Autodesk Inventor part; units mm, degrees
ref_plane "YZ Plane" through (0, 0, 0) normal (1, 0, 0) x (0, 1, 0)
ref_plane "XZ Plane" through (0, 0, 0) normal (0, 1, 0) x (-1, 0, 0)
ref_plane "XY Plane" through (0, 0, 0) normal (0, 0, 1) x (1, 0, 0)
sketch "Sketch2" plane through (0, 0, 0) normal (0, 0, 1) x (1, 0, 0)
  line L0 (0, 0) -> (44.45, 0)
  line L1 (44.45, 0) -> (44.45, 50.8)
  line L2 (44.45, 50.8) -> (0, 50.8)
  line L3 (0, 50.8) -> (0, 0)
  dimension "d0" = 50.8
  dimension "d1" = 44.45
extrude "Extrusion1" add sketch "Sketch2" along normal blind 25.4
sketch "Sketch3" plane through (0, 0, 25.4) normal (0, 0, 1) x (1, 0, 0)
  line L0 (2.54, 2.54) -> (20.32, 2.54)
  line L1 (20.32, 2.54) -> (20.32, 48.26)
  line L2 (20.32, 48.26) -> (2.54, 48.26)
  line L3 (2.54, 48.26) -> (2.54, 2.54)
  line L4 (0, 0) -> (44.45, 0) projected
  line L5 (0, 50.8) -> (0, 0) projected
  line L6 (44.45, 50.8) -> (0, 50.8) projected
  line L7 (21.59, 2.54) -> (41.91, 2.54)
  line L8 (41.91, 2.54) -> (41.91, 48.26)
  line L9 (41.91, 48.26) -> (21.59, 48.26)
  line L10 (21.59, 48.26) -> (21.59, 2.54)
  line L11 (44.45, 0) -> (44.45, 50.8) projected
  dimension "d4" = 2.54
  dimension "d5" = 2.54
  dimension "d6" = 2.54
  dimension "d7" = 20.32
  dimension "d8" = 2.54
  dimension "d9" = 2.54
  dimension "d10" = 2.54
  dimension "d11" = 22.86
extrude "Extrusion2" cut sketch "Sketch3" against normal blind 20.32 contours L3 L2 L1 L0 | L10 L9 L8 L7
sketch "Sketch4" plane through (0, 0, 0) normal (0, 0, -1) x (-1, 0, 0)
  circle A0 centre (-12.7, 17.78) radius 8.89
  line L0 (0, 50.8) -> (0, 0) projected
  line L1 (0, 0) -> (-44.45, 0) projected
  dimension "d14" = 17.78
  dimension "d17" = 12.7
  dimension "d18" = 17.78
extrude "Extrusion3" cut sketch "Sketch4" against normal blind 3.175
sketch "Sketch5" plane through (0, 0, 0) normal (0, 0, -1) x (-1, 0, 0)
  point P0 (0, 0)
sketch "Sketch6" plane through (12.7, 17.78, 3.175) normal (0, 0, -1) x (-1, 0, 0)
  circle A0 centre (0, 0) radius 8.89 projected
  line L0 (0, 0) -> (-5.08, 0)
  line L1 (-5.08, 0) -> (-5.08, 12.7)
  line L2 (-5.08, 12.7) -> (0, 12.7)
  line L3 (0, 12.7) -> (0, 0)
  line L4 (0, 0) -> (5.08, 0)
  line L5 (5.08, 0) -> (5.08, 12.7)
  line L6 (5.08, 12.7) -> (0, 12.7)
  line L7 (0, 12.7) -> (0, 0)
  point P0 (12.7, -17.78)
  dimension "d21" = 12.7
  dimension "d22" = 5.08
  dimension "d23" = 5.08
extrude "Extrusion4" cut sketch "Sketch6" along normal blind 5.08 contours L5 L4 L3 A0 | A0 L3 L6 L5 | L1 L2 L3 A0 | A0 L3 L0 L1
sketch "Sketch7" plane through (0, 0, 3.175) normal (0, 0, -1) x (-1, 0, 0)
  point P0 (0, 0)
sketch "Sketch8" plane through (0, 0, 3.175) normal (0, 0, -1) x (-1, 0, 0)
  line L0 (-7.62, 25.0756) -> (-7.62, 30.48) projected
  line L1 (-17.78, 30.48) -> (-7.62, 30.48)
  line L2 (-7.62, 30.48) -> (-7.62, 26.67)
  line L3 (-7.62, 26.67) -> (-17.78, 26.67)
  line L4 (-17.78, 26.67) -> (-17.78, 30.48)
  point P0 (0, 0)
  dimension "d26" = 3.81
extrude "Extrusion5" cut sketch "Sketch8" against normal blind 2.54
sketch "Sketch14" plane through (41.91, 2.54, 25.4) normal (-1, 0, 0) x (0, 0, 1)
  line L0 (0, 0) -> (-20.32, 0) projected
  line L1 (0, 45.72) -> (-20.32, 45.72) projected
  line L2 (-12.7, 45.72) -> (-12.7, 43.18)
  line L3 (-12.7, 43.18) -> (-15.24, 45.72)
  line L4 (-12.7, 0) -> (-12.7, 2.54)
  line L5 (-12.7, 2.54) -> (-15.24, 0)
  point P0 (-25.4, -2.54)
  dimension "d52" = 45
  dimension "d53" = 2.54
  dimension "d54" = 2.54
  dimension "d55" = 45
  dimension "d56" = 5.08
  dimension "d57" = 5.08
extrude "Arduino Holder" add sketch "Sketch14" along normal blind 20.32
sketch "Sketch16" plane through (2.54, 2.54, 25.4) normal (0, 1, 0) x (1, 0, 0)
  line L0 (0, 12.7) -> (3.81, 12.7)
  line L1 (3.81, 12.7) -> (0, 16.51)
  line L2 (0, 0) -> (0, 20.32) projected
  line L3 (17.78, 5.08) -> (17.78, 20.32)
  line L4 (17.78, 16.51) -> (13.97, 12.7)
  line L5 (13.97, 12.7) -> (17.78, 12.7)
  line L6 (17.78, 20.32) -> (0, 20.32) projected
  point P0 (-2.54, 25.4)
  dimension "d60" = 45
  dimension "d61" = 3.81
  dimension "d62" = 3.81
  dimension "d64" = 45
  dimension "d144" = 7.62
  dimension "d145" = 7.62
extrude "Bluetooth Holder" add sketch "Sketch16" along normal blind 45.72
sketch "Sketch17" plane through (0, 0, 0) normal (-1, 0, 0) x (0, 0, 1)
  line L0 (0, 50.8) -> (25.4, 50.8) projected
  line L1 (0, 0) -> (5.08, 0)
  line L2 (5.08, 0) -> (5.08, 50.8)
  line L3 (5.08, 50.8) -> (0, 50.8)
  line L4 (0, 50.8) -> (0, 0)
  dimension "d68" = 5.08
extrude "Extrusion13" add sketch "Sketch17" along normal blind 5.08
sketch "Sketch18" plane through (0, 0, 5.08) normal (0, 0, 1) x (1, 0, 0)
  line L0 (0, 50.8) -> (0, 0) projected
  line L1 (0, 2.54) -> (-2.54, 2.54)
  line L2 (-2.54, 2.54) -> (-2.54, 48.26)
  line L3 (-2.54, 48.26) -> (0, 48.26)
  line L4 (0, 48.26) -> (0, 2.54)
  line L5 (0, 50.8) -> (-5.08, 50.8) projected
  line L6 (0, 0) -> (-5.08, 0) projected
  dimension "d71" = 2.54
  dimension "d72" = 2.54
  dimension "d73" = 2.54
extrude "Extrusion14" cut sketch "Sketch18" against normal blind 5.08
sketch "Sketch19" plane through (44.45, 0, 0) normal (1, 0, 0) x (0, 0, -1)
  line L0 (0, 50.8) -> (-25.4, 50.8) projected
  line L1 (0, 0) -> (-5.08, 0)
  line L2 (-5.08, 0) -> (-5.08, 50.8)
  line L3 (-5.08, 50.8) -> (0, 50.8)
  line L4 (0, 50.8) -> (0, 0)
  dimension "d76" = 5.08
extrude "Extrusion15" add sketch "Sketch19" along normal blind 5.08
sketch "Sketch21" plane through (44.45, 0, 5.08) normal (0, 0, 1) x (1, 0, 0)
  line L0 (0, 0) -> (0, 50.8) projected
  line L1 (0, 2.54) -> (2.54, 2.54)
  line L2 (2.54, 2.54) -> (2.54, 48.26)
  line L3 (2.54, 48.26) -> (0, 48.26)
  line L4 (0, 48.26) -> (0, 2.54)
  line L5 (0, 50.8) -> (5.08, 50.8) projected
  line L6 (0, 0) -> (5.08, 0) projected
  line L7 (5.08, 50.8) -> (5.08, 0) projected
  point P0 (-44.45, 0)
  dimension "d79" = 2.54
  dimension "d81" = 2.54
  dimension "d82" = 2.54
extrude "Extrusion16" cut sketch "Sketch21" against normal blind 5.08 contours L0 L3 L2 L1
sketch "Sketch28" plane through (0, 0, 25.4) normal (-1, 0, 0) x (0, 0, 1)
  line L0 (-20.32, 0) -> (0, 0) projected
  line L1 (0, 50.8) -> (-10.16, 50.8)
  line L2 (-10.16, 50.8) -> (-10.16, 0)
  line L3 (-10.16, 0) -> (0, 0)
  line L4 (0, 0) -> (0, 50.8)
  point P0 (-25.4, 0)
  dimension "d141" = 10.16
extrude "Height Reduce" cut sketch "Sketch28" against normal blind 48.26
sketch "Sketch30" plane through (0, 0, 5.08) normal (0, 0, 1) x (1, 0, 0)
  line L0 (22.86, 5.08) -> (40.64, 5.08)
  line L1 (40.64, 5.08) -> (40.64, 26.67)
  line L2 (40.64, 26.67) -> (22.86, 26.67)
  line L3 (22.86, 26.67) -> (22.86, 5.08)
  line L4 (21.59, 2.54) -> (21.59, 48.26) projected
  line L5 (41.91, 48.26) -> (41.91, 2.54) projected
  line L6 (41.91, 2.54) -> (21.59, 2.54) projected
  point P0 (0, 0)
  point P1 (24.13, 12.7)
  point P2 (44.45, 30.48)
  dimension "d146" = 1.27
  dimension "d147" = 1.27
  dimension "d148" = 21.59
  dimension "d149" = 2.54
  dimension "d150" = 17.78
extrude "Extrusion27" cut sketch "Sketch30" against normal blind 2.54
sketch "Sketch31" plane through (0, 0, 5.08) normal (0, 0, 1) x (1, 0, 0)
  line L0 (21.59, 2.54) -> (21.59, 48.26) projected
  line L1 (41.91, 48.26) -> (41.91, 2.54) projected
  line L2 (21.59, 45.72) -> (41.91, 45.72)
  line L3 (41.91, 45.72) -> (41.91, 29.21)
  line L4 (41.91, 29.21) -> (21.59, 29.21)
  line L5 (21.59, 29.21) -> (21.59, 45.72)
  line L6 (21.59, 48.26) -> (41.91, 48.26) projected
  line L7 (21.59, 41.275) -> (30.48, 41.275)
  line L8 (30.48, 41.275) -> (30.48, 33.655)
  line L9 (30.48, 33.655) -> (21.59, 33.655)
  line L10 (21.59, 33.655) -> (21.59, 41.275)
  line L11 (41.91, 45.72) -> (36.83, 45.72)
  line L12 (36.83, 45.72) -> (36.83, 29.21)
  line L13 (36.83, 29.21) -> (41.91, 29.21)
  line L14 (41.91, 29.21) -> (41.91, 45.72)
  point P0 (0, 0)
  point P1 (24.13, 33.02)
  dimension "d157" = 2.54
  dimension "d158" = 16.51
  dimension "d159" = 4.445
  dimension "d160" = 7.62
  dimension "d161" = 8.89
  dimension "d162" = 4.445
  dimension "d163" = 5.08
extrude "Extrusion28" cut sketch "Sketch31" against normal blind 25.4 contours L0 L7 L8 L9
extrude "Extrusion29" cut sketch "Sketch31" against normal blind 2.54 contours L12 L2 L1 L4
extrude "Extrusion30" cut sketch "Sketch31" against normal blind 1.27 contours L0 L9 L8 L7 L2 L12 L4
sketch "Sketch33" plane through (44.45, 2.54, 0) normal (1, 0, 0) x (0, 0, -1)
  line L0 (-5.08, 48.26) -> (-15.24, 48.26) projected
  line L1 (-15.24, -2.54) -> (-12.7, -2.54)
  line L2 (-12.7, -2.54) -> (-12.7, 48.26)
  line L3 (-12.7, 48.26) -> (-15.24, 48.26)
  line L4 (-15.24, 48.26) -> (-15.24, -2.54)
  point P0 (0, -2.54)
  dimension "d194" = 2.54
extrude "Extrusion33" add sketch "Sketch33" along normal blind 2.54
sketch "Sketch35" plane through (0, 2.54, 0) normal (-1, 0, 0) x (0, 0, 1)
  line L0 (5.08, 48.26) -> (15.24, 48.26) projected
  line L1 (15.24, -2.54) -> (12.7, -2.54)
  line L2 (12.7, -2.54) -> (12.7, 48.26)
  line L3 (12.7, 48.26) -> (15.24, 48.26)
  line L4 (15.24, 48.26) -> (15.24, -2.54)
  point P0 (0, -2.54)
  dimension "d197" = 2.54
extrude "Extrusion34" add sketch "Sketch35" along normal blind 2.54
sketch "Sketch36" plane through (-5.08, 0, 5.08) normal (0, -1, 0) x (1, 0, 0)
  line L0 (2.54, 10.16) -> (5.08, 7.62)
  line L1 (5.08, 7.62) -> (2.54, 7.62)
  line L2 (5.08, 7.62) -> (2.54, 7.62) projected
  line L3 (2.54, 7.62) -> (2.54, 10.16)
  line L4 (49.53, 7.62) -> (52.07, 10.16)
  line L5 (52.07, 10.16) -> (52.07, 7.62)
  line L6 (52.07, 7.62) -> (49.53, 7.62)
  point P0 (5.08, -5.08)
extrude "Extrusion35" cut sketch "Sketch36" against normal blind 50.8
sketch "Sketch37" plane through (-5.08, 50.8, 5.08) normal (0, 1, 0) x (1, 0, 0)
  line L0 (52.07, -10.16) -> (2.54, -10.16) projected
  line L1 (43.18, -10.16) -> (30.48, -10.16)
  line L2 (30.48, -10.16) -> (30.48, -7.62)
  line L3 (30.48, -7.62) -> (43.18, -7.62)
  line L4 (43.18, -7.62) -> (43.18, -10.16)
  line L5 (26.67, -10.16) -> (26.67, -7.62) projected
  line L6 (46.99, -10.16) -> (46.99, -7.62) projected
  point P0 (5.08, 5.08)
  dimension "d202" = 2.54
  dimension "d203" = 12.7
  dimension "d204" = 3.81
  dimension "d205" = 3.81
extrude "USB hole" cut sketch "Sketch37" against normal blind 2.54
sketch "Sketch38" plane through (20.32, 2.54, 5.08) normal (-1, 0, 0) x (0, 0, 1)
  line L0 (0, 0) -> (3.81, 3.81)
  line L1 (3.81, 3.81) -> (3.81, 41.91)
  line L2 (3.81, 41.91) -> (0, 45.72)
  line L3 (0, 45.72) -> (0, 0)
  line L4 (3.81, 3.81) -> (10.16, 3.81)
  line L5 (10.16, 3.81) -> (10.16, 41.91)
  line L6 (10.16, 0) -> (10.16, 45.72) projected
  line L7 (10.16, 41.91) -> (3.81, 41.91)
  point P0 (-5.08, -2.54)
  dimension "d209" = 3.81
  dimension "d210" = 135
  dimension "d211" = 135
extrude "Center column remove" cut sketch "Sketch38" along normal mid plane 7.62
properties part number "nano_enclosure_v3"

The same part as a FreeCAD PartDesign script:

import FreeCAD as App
import Part
import Sketcher
Q = App.Units.Quantity


def add_polygon(sketch, points):
    """Adds a closed chain of lines whose ends are joined by coincident constraints."""
    first, n = sketch.GeometryCount, len(points)
    for a, b in zip(points, points[1:] + points[:1]):
        sketch.addGeometry(Part.LineSegment(App.Vector(*a, 0), App.Vector(*b, 0)), False)
    for i in range(n):
        sketch.addConstraint(Sketcher.Constraint("Coincident", first + i, 2, first + (i + 1) % n, 1))

doc = App.newDocument("Part")
params = doc.addObject("Spreadsheet::Sheet", "Params")
for row, (alias, value) in enumerate([
    ("sketch1_height", "2 in"),
    ("sketch1_width", "1.75 in"),
    ("pad1_length", "1 in"),
    ("sketch2_width", "0.8 in"),
    ("sketch2_height", "1.8 in"),
    ("pocket1_length", "0.8 in"),
    ("sketch3_diameter", "0.7 in"),
    ("pocket2_length", "0.125 in"),
    ("sketch4_height", "0.5 in"),
    ("sketch4_width", "0.4 in"),
    ("pocket3_length", "0.2 in"),
    ("sketch5_height", "0.15 in"),
    ("sketch5_width", "0.4 in"),
    ("pocket4_length", "0.1 in"),
    ("sketch6_width", "0.1 in"),
    ("pad2_length", "0.8 in"),
    ("sketch7_width", "0.15 in"),
    ("pad3_length", "1.8 in"),
    ("sketch8_height", "0.2 in"),
    ("sketch8_width", "2 in"),
    ("pad4_length", "0.2 in"),
    ("sketch9_width", "0.1 in"),
    ("sketch9_height", "1.8 in"),
    ("pocket5_length", "0.2 in"),
    ("sketch10_height", "0.2 in"),
    ("sketch10_width", "2 in"),
    ("pad5_length", "0.2 in"),
    ("sketch11_width", "0.1 in"),
    ("sketch11_height", "1.8 in"),
    ("pocket6_length", "0.2 in"),
    ("sketch12_height", "0.4 in"),
    ("sketch12_width", "2 in"),
    ("pocket7_length", "1.9 in"),
    ("sketch13_width", "0.7 in"),
    ("sketch13_height", "0.85 in"),
    ("pocket8_length", "0.1 in"),
    ("sketch14_height", "0.3 in"),
    ("sketch14_width", "0.35 in"),
    ("pocket9_length", "1 in"),
    ("sketch15_width", "0.2 in"),
    ("sketch15_height", "0.65 in"),
    ("pocket10_length", "0.1 in"),
    ("sketch16_height", "0.3 in"),
    ("sketch16_width", "0.35 in"),
    ("sketch16_height2", "0.65 in"),
    ("sketch16_width2", "0.6 in"),
    ("pocket11_length", "0.05 in"),
    ("sketch17_height", "0.1 in"),
    ("sketch17_width", "2 in"),
    ("pad6_length", "0.1 in"),
    ("sketch18_height", "0.1 in"),
    ("sketch18_width", "2 in"),
    ("pad7_length", "0.1 in"),
    ("sketch19_width", "0.1 in"),
    ("pocket12_length", "2 in"),
    ("sketch20_width", "0.5 in"),
    ("sketch20_height", "0.1 in"),
    ("pocket13_length", "0.1 in"),
    ("sketch21_width", "1.8 in"),
    ("sketch21_height", "0.25 in"),
    ("pocket14_length", "0.3 in"),
], start=1):
    params.set(f"A{row}", alias)
    params.set(f"B{row}", "=" + value)
    params.setAlias(f"B{row}", alias)

body = doc.addObject("PartDesign::Body", "Body")

sketch1 = body.newObject("Sketcher::SketchObject", "Sketch")
sketch1.AttachmentSupport = (doc.getObject("XY_Plane"), [""])
sketch1.MapMode = "FlatFace"
add_polygon(sketch1, [(0, 50.8), (0, 0), (44.45, 0), (44.45, 50.8)])
sketch1.addConstraint([
    Sketcher.Constraint("Vertical", 0),
    Sketcher.Constraint("Horizontal", 1),
    Sketcher.Constraint("Vertical", 2),
    Sketcher.Constraint("Horizontal", 3),
    Sketcher.Constraint("Coincident", 0, 2, -1, 1),
    Sketcher.Constraint("DistanceY", 0, 2, 0, 1, Q("2 in")),
    Sketcher.Constraint("DistanceX", 1, 1, 1, 2, Q("1.75 in")),
])
sketch1.setExpression("Constraints[9]", "Params.sketch1_height")
sketch1.setExpression("Constraints[10]", "Params.sketch1_width")
pad1 = body.newObject("PartDesign::Pad", "Pad")
pad1.Profile = sketch1
pad1.setExpression("Length", "Params.pad1_length")

sketch2 = body.newObject("Sketcher::SketchObject", "Sketch001")
sketch2.AttachmentSupport = (doc.getObject("XY_Plane"), [""])
sketch2.MapMode = "FlatFace"
sketch2.AttachmentOffset = App.Placement(App.Vector(0, 0, 1 * 25.4), App.Rotation())
add_polygon(sketch2, [(2.54, 48.26), (2.54, 2.54), (20.32, 2.54), (20.32, 48.26)])
add_polygon(sketch2, [(21.59, 48.26), (21.59, 2.54), (41.91, 2.54), (41.91, 48.26)])
sketch2.addConstraint([
    Sketcher.Constraint("Vertical", 0),
    Sketcher.Constraint("Horizontal", 1),
    Sketcher.Constraint("Vertical", 2),
    Sketcher.Constraint("Horizontal", 3),
    Sketcher.Constraint("Vertical", 4),
    Sketcher.Constraint("Horizontal", 5),
    Sketcher.Constraint("Vertical", 6),
    Sketcher.Constraint("Horizontal", 7),
    Sketcher.Constraint("Horizontal", 1, 2, 4, 2),
    Sketcher.Constraint("Horizontal", 3, 2, 6, 2),
    Sketcher.Constraint("DistanceX", 5, 1, 5, 2, Q("0.8 in")),
    Sketcher.Constraint("DistanceX", -1, 1, 0, 2, Q("0.1 in")),
    Sketcher.Constraint("DistanceY", -1, 1, 0, 2, Q("0.1 in")),
    Sketcher.Constraint("DistanceX", -1, 1, 1, 2, Q("0.8 in")),
    Sketcher.Constraint("DistanceY", 0, 2, 0, 1, Q("1.8 in")),
    Sketcher.Constraint("DistanceX", -1, 1, 4, 2, Q("0.85 in")),
])
sketch2.setExpression("Constraints[18]", "Params.sketch2_width")
sketch2.setExpression("Constraints[22]", "Params.sketch2_height")
pocket1 = body.newObject("PartDesign::Pocket", "Pocket")
pocket1.Profile = sketch2
pocket1.setExpression("Length", "Params.pocket1_length")

sketch3 = body.newObject("Sketcher::SketchObject", "Sketch002")
sketch3.AttachmentSupport = (doc.getObject("XY_Plane"), [""])
sketch3.MapMode = "FlatFace"
sketch3.addGeometry(Part.Circle(App.Vector(12.7, 17.78, 0), App.Vector(0, 0, 1), 8.89), False)
sketch3.addConstraint([
    Sketcher.Constraint("Diameter", 0, Q("0.7 in")),
    Sketcher.Constraint("DistanceX", -1, 1, 0, 3, Q("0.5 in")),
    Sketcher.Constraint("DistanceY", -1, 1, 0, 3, Q("0.7 in")),
])
sketch3.setExpression("Constraints[0]", "Params.sketch3_diameter")
pocket2 = body.newObject("PartDesign::Pocket", "Pocket001")
pocket2.Profile = sketch3
pocket2.setExpression("Length", "Params.pocket2_length")
pocket2.Reversed = True

sketch4 = body.newObject("Sketcher::SketchObject", "Sketch003")
sketch4.AttachmentSupport = (doc.getObject("XY_Plane"), [""])
sketch4.MapMode = "FlatFace"
sketch4.AttachmentOffset = App.Placement(App.Vector(0, 0, 0.125 * 25.4), App.Rotation())
add_polygon(sketch4, [(7.62, 17.78), (7.62, 30.48), (17.78, 30.48), (17.78, 17.78)])
sketch4.addConstraint([
    Sketcher.Constraint("Vertical", 0),
    Sketcher.Constraint("Horizontal", 1),
    Sketcher.Constraint("Vertical", 2),
    Sketcher.Constraint("Horizontal", 3),
    Sketcher.Constraint("DistanceY", 0, 1, 0, 2, Q("0.5 in")),
    Sketcher.Constraint("DistanceX", 1, 1, 1, 2, Q("0.4 in")),
    Sketcher.Constraint("DistanceX", -1, 1, 0, 2, Q("0.3 in")),
    Sketcher.Constraint("DistanceY", -1, 1, 0, 2, Q("1.2 in")),
])
sketch4.setExpression("Constraints[8]", "Params.sketch4_height")
sketch4.setExpression("Constraints[9]", "Params.sketch4_width")
pocket3 = body.newObject("PartDesign::Pocket", "Pocket002")
pocket3.Profile = sketch4
pocket3.setExpression("Length", "Params.pocket3_length")

sketch5 = body.newObject("Sketcher::SketchObject", "Sketch004")
sketch5.AttachmentSupport = (doc.getObject("XY_Plane"), [""])
sketch5.MapMode = "FlatFace"
sketch5.AttachmentOffset = App.Placement(App.Vector(0, 0, 0.125 * 25.4), App.Rotation())
add_polygon(sketch5, [(17.78, 26.67), (7.62, 26.67), (7.62, 30.48), (17.78, 30.48)])
sketch5.addConstraint([
    Sketcher.Constraint("Horizontal", 0),
    Sketcher.Constraint("Vertical", 1),
    Sketcher.Constraint("Horizontal", 2),
    Sketcher.Constraint("Vertical", 3),
    Sketcher.Constraint("DistanceY", 1, 1, 1, 2, Q("0.15 in")),
    Sketcher.Constraint("DistanceX", 0, 2, 0, 1, Q("0.4 in")),
    Sketcher.Constraint("DistanceX", -1, 1, 0, 2, Q("0.3 in")),
    Sketcher.Constraint("DistanceY", -1, 1, 1, 2, Q("1.2 in")),
])
sketch5.setExpression("Constraints[8]", "Params.sketch5_height")
sketch5.setExpression("Constraints[9]", "Params.sketch5_width")
pocket4 = body.newObject("PartDesign::Pocket", "Pocket003")
pocket4.Profile = sketch5
pocket4.setExpression("Length", "Params.pocket4_length")
pocket4.Reversed = True

sketch6 = body.newObject("Sketcher::SketchObject", "Sketch005")
sketch6.AttachmentSupport = (doc.getObject("YZ_Plane"), [""])
sketch6.MapMode = "FlatFace"
sketch6.AttachmentOffset = App.Placement(App.Vector(0, 0, 1.65 * 25.4), App.Rotation())
add_polygon(sketch6, [(2.54, 10.16), (2.54, 12.7), (5.08, 12.7)])
add_polygon(sketch6, [(45.72, 12.7), (48.26, 12.7), (48.26, 10.16)])
sketch6.addConstraint([
    Sketcher.Constraint("Vertical", 0),
    Sketcher.Constraint("Horizontal", 1),
    Sketcher.Constraint("Horizontal", 3),
    Sketcher.Constraint("Vertical", 4),
    Sketcher.Constraint("Perpendicular", 2, 5),
    Sketcher.Constraint("Horizontal", 1, 2, 3, 2),
    Sketcher.Constraint("Horizontal", 2, 2, 4, 2),
    Sketcher.Constraint("Equal", 1, 3),
    Sketcher.Constraint("DistanceX", 1, 1, 1, 2, Q("0.1 in")),
    Sketcher.Constraint("DistanceX", -1, 1, 0, 2, Q("0.1 in")),
    Sketcher.Constraint("DistanceY", -1, 1, 0, 2, Q("0.5 in")),
    Sketcher.Constraint("DistanceX", -1, 1, 3, 2, Q("1.9 in")),
])
sketch6.setExpression("Constraints[14]", "Params.sketch6_width")
pad2 = body.newObject("PartDesign::Pad", "Pad001")
pad2.Profile = sketch6
pad2.setExpression("Length", "Params.pad2_length")
pad2.Reversed = True

sketch7 = body.newObject("Sketcher::SketchObject", "Sketch006")
sketch7.AttachmentSupport = (doc.getObject("XZ_Plane"), [""])
sketch7.MapMode = "FlatFace"
sketch7.AttachmentOffset = App.Placement(App.Vector(0, 0, -0.1 * 25.4), App.Rotation())
add_polygon(sketch7, [(2.54, 8.89), (2.54, 12.7), (6.35, 12.7)])
add_polygon(sketch7, [(20.32, 12.7), (20.32, 8.89), (16.51, 12.7)])
sketch7.addConstraint([
    Sketcher.Constraint("Vertical", 0),
    Sketcher.Constraint("Horizontal", 1),
    Sketcher.Constraint("Vertical", 3),
    Sketcher.Constraint("Horizontal", 5),
    Sketcher.Constraint("Perpendicular", 2, 4),
    Sketcher.Constraint("Horizontal", 2, 2, 3, 2),
    Sketcher.Constraint("Horizontal", 1, 2, 4, 2),
    Sketcher.Constraint("Equal", 1, 5),
    Sketcher.Constraint("DistanceX", 1, 1, 1, 2, Q("0.15 in")),
    Sketcher.Constraint("DistanceX", -1, 1, 0, 2, Q("0.1 in")),
    Sketcher.Constraint("DistanceY", -1, 1, 0, 2, Q("0.5 in")),
    Sketcher.Constraint("DistanceX", -1, 1, 3, 2, Q("0.8 in")),
])
sketch7.setExpression("Constraints[14]", "Params.sketch7_width")
pad3 = body.newObject("PartDesign::Pad", "Pad002")
pad3.Profile = sketch7
pad3.setExpression("Length", "Params.pad3_length")
pad3.Reversed = True

sketch8 = body.newObject("Sketcher::SketchObject", "Sketch007")
sketch8.AttachmentSupport = (doc.getObject("YZ_Plane"), [""])
sketch8.MapMode = "FlatFace"
add_polygon(sketch8, [(50.8, 5.08), (50.8, 0), (0, 0), (0, 5.08)])
sketch8.addConstraint([
    Sketcher.Constraint("Vertical", 0),
    Sketcher.Constraint("Horizontal", 1),
    Sketcher.Constraint("Vertical", 2),
    Sketcher.Constraint("Horizontal", 3),
    Sketcher.Constraint("Coincident", 1, 2, -1, 1),
    Sketcher.Constraint("DistanceY", 0, 2, 0, 1, Q("0.2 in")),
    Sketcher.Constraint("DistanceX", 1, 2, 1, 1, Q("2 in")),
])
sketch8.setExpression("Constraints[9]", "Params.sketch8_height")
sketch8.setExpression("Constraints[10]", "Params.sketch8_width")
pad4 = body.newObject("PartDesign::Pad", "Pad003")
pad4.Profile = sketch8
pad4.setExpression("Length", "Params.pad4_length")
pad4.Reversed = True

sketch9 = body.newObject("Sketcher::SketchObject", "Sketch008")
sketch9.AttachmentSupport = (doc.getObject("XY_Plane"), [""])
sketch9.MapMode = "FlatFace"
sketch9.AttachmentOffset = App.Placement(App.Vector(0, 0, 0.2 * 25.4), App.Rotation())
add_polygon(sketch9, [(0, 2.54), (0, 48.26), (-2.54, 48.26), (-2.54, 2.54)])
sketch9.addConstraint([
    Sketcher.Constraint("Vertical", 0),
    Sketcher.Constraint("Horizontal", 1),
    Sketcher.Constraint("Vertical", 2),
    Sketcher.Constraint("Horizontal", 3),
    Sketcher.Constraint("PointOnObject", 0, 2, -2),
    Sketcher.Constraint("DistanceX", 1, 2, 1, 1, Q("0.1 in")),
    Sketcher.Constraint("DistanceY", -1, 1, 2, 2, Q("0.1 in")),
    Sketcher.Constraint("DistanceY", 0, 1, 0, 2, Q("1.8 in")),
])
sketch9.setExpression("Constraints[9]", "Params.sketch9_width")
sketch9.setExpression("Constraints[11]", "Params.sketch9_height")
pocket5 = body.newObject("PartDesign::Pocket", "Pocket004")
pocket5.Profile = sketch9
pocket5.setExpression("Length", "Params.pocket5_length")

sketch10 = body.newObject("Sketcher::SketchObject", "Sketch009")
sketch10.AttachmentSupport = (doc.getObject("YZ_Plane"), [""])
sketch10.MapMode = "FlatFace"
sketch10.AttachmentOffset = App.Placement(App.Vector(0, 0, 1.75 * 25.4), App.Rotation())
add_polygon(sketch10, [(0, 0), (50.8, 0), (50.8, 5.08), (0, 5.08)])
sketch10.addConstraint([
    Sketcher.Constraint("Horizontal", 0),
    Sketcher.Constraint("Vertical", 1),
    Sketcher.Constraint("Horizontal", 2),
    Sketcher.Constraint("Vertical", 3),
    Sketcher.Constraint("Coincident", 3, 2, -1, 1),
    Sketcher.Constraint("DistanceY", 1, 1, 1, 2, Q("0.2 in")),
    Sketcher.Constraint("DistanceX", 0, 1, 0, 2, Q("2 in")),
])
sketch10.setExpression("Constraints[9]", "Params.sketch10_height")
sketch10.setExpression("Constraints[10]", "Params.sketch10_width")
pad5 = body.newObject("PartDesign::Pad", "Pad004")
pad5.Profile = sketch10
pad5.setExpression("Length", "Params.pad5_length")

sketch11 = body.newObject("Sketcher::SketchObject", "Sketch010")
sketch11.AttachmentSupport = (doc.getObject("XY_Plane"), [""])
sketch11.MapMode = "FlatFace"
sketch11.AttachmentOffset = App.Placement(App.Vector(0, 0, 0.2 * 25.4), App.Rotation())
add_polygon(sketch11, [(44.45, 48.26), (44.45, 2.54), (46.99, 2.54), (46.99, 48.26)])
sketch11.addConstraint([
    Sketcher.Constraint("Vertical", 0),
    Sketcher.Constraint("Horizontal", 1),
    Sketcher.Constraint("Vertical", 2),
    Sketcher.Constraint("Horizontal", 3),
    Sketcher.Constraint("DistanceX", 1, 1, 1, 2, Q("0.1 in")),
    Sketcher.Constraint("DistanceY", -1, 1, 0, 2, Q("0.1 in")),
    Sketcher.Constraint("DistanceY", 0, 2, 0, 1, Q("1.8 in")),
    Sketcher.Constraint("DistanceX", -1, 1, 0, 2, Q("1.75 in")),
])
sketch11.setExpression("Constraints[8]", "Params.sketch11_width")
sketch11.setExpression("Constraints[10]", "Params.sketch11_height")
pocket6 = body.newObject("PartDesign::Pocket", "Pocket005")
pocket6.Profile = sketch11
pocket6.setExpression("Length", "Params.pocket6_length")

sketch12 = body.newObject("Sketcher::SketchObject", "Sketch011")
sketch12.AttachmentSupport = (doc.getObject("YZ_Plane"), [""])
sketch12.MapMode = "FlatFace"
add_polygon(sketch12, [(50.8, 15.24), (0, 15.24), (0, 25.4), (50.8, 25.4)])
sketch12.addConstraint([
    Sketcher.Constraint("Horizontal", 0),
    Sketcher.Constraint("Vertical", 1),
    Sketcher.Constraint("Horizontal", 2),
    Sketcher.Constraint("Vertical", 3),
    Sketcher.Constraint("PointOnObject", 0, 2, -2),
    Sketcher.Constraint("DistanceY", 1, 1, 1, 2, Q("0.4 in")),
    Sketcher.Constraint("DistanceX", 0, 2, 0, 1, Q("2 in")),
    Sketcher.Constraint("DistanceY", -1, 1, 1, 2, Q("1 in")),
])
sketch12.setExpression("Constraints[9]", "Params.sketch12_height")
sketch12.setExpression("Constraints[10]", "Params.sketch12_width")
pocket7 = body.newObject("PartDesign::Pocket", "Pocket006")
pocket7.Profile = sketch12
pocket7.setExpression("Length", "Params.pocket7_length")
pocket7.Reversed = True

sketch13 = body.newObject("Sketcher::SketchObject", "Sketch012")
sketch13.AttachmentSupport = (doc.getObject("XY_Plane"), [""])
sketch13.MapMode = "FlatFace"
sketch13.AttachmentOffset = App.Placement(App.Vector(0, 0, 0.2 * 25.4), App.Rotation())
add_polygon(sketch13, [(22.86, 26.67), (22.86, 5.08), (40.64, 5.08), (40.64, 26.67)])
sketch13.addConstraint([
    Sketcher.Constraint("Vertical", 0),
    Sketcher.Constraint("Horizontal", 1),
    Sketcher.Constraint("Vertical", 2),
    Sketcher.Constraint("Horizontal", 3),
    Sketcher.Constraint("DistanceX", 1, 1, 1, 2, Q("0.7 in")),
    Sketcher.Constraint("DistanceY", 0, 2, 0, 1, Q("0.85 in")),
    Sketcher.Constraint("DistanceX", -1, 1, 0, 2, Q("0.9 in")),
    Sketcher.Constraint("DistanceY", -1, 1, 0, 2, Q("0.2 in")),
])
sketch13.setExpression("Constraints[8]", "Params.sketch13_width")
sketch13.setExpression("Constraints[9]", "Params.sketch13_height")
pocket8 = body.newObject("PartDesign::Pocket", "Pocket007")
pocket8.Profile = sketch13
pocket8.setExpression("Length", "Params.pocket8_length")

sketch14 = body.newObject("Sketcher::SketchObject", "Sketch013")
sketch14.AttachmentSupport = (doc.getObject("XY_Plane"), [""])
sketch14.MapMode = "FlatFace"
sketch14.AttachmentOffset = App.Placement(App.Vector(0, 0, 0.2 * 25.4), App.Rotation())
add_polygon(sketch14, [(21.59, 41.275), (21.59, 33.655), (30.48, 33.655), (30.48, 41.275)])
sketch14.addConstraint([
    Sketcher.Constraint("Vertical", 0),
    Sketcher.Constraint("Horizontal", 1),
    Sketcher.Constraint("Vertical", 2),
    Sketcher.Constraint("Horizontal", 3),
    Sketcher.Constraint("DistanceY", 0, 2, 0, 1, Q("0.3 in")),
    Sketcher.Constraint("DistanceX", 1, 1, 1, 2, Q("0.35 in")),
    Sketcher.Constraint("DistanceX", -1, 1, 1, 2, Q("1.2 in")),
    Sketcher.Constraint("DistanceY", -1, 1, 0, 2, Q("1.325 in")),
])
sketch14.setExpression("Constraints[8]", "Params.sketch14_height")
sketch14.setExpression("Constraints[9]", "Params.sketch14_width")
pocket9 = body.newObject("PartDesign::Pocket", "Pocket008")
pocket9.Profile = sketch14
pocket9.setExpression("Length", "Params.pocket9_length")

sketch15 = body.newObject("Sketcher::SketchObject", "Sketch014")
sketch15.AttachmentSupport = (doc.getObject("XY_Plane"), [""])
sketch15.MapMode = "FlatFace"
sketch15.AttachmentOffset = App.Placement(App.Vector(0, 0, 0.2 * 25.4), App.Rotation())
add_polygon(sketch15, [(36.83, 45.72), (36.83, 29.21), (41.91, 29.21), (41.91, 45.72)])
sketch15.addConstraint([
    Sketcher.Constraint("Vertical", 0),
    Sketcher.Constraint("Horizontal", 1),
    Sketcher.Constraint("Vertical", 2),
    Sketcher.Constraint("Horizontal", 3),
    Sketcher.Constraint("DistanceX", 1, 1, 1, 2, Q("0.2 in")),
    Sketcher.Constraint("DistanceY", 0, 2, 0, 1, Q("0.65 in")),
    Sketcher.Constraint("DistanceY", -1, 1, 2, 2, Q("1.8 in")),
    Sketcher.Constraint("DistanceX", -1, 1, 0, 2, Q("1.45 in")),
])
sketch15.setExpression("Constraints[8]", "Params.sketch15_width")
sketch15.setExpression("Constraints[9]", "Params.sketch15_height")
pocket10 = body.newObject("PartDesign::Pocket", "Pocket009")
pocket10.Profile = sketch15
pocket10.setExpression("Length", "Params.pocket10_length")

sketch16 = body.newObject("Sketcher::SketchObject", "Sketch015")
sketch16.AttachmentSupport = (doc.getObject("XY_Plane"), [""])
sketch16.MapMode = "FlatFace"
sketch16.AttachmentOffset = App.Placement(App.Vector(0, 0, 0.2 * 25.4), App.Rotation())
add_polygon(sketch16, [(21.59, 33.655), (21.59, 29.21), (36.83, 29.21), (36.83, 45.72), (21.59, 45.72), (21.59, 41.275), (30.48, 41.275), (30.48, 33.655)])
sketch16.addConstraint([
    Sketcher.Constraint("Vertical", 0),
    Sketcher.Constraint("Horizontal", 1),
    Sketcher.Constraint("Vertical", 2),
    Sketcher.Constraint("Horizontal", 3),
    Sketcher.Constraint("Vertical", 4),
    Sketcher.Constraint("Horizontal", 5),
    Sketcher.Constraint("Vertical", 6),
    Sketcher.Constraint("Horizontal", 7),
    Sketcher.Constraint("Vertical", 0, 2, 3, 2),
    Sketcher.Constraint("Equal", 0, 4),
    Sketcher.Constraint("DistanceY", 6, 2, 6, 1, Q("0.3 in")),
    Sketcher.Constraint("DistanceX", 5, 1, 5, 2, Q("0.35 in")),
    Sketcher.Constraint("DistanceY", 2, 1, 2, 2, Q("0.65 in")),
    Sketcher.Constraint("DistanceX", 1, 1, 1, 2, Q("0.6 in")),
    Sketcher.Constraint("DistanceY", -1, 1, 2, 2, Q("1.8 in")),
    Sketcher.Constraint("DistanceX", -1, 1, 5, 2, Q("1.2 in")),
])
sketch16.setExpression("Constraints[18]", "Params.sketch16_height")
sketch16.setExpression("Constraints[19]", "Params.sketch16_width")
sketch16.setExpression("Constraints[20]", "Params.sketch16_height2")
sketch16.setExpression("Constraints[21]", "Params.sketch16_width2")
pocket11 = body.newObject("PartDesign::Pocket", "Pocket010")
pocket11.Profile = sketch16
pocket11.setExpression("Length", "Params.pocket11_length")

sketch17 = body.newObject("Sketcher::SketchObject", "Sketch016")
sketch17.AttachmentSupport = (doc.getObject("YZ_Plane"), [""])
sketch17.MapMode = "FlatFace"
sketch17.AttachmentOffset = App.Placement(App.Vector(0, 0, 1.75 * 25.4), App.Rotation())
add_polygon(sketch17, [(0, 12.7), (50.8, 12.7), (50.8, 15.24), (0, 15.24)])
sketch17.addConstraint([
    Sketcher.Constraint("Horizontal", 0),
    Sketcher.Constraint("Vertical", 1),
    Sketcher.Constraint("Horizontal", 2),
    Sketcher.Constraint("Vertical", 3),
    Sketcher.Constraint("PointOnObject", 2, 2, -2),
    Sketcher.Constraint("DistanceY", 1, 1, 1, 2, Q("0.1 in")),
    Sketcher.Constraint("DistanceX", 0, 1, 0, 2, Q("2 in")),
    Sketcher.Constraint("DistanceY", -1, 1, 0, 2, Q("0.5 in")),
])
sketch17.setExpression("Constraints[9]", "Params.sketch17_height")
sketch17.setExpression("Constraints[10]", "Params.sketch17_width")
pad6 = body.newObject("PartDesign::Pad", "Pad005")
pad6.Profile = sketch17
pad6.setExpression("Length", "Params.pad6_length")

sketch18 = body.newObject("Sketcher::SketchObject", "Sketch017")
sketch18.AttachmentSupport = (doc.getObject("YZ_Plane"), [""])
sketch18.MapMode = "FlatFace"
add_polygon(sketch18, [(50.8, 15.24), (50.8, 12.7), (0, 12.7), (0, 15.24)])
sketch18.addConstraint([
    Sketcher.Constraint("Vertical", 0),
    Sketcher.Constraint("Horizontal", 1),
    Sketcher.Constraint("Vertical", 2),
    Sketcher.Constraint("Horizontal", 3),
    Sketcher.Constraint("PointOnObject", 1, 2, -2),
    Sketcher.Constraint("DistanceY", 0, 2, 0, 1, Q("0.1 in")),
    Sketcher.Constraint("DistanceX", 1, 2, 1, 1, Q("2 in")),
    Sketcher.Constraint("DistanceY", -1, 1, 0, 2, Q("0.5 in")),
])
sketch18.setExpression("Constraints[9]", "Params.sketch18_height")
sketch18.setExpression("Constraints[10]", "Params.sketch18_width")
pad7 = body.newObject("PartDesign::Pad", "Pad006")
pad7.Profile = sketch18
pad7.setExpression("Length", "Params.pad7_length")
pad7.Reversed = True

sketch19 = body.newObject("Sketcher::SketchObject", "Sketch018")
sketch19.AttachmentSupport = (doc.getObject("XZ_Plane"), [""])
sketch19.MapMode = "FlatFace"
add_polygon(sketch19, [(0, 12.7), (-2.54, 15.24), (-2.54, 12.7)])
add_polygon(sketch19, [(46.99, 15.24), (44.45, 12.7), (46.99, 12.7)])
sketch19.addConstraint([
    Sketcher.Constraint("Vertical", 1),
    Sketcher.Constraint("Horizontal", 2),
    Sketcher.Constraint("Horizontal", 4),
    Sketcher.Constraint("Vertical", 5),
    Sketcher.Constraint("PointOnObject", 2, 2, -2),
    Sketcher.Constraint("Perpendicular", 0, 3),
    Sketcher.Constraint("Horizontal", 2, 2, 3, 2),
    Sketcher.Constraint("Horizontal", 0, 2, 5, 2),
    Sketcher.Constraint("Equal", 2, 4),
    Sketcher.Constraint("DistanceX", 2, 1, 2, 2, Q("0.1 in")),
    Sketcher.Constraint("DistanceY", -1, 1, 0, 2, Q("0.6 in")),
    Sketcher.Constraint("DistanceX", -1, 1, 3, 2, Q("1.75 in")),
])
sketch19.setExpression("Constraints[15]", "Params.sketch19_width")
pocket12 = body.newObject("PartDesign::Pocket", "Pocket011")
pocket12.Profile = sketch19
pocket12.setExpression("Length", "Params.pocket12_length")

sketch20 = body.newObject("Sketcher::SketchObject", "Sketch019")
sketch20.AttachmentSupport = (doc.getObject("XZ_Plane"), [""])
sketch20.MapMode = "FlatFace"
sketch20.AttachmentOffset = App.Placement(App.Vector(0, 0, -2 * 25.4), App.Rotation())
add_polygon(sketch20, [(25.4, 15.24), (38.1, 15.24), (38.1, 12.7), (25.4, 12.7)])
sketch20.addConstraint([
    Sketcher.Constraint("Horizontal", 0),
    Sketcher.Constraint("Vertical", 1),
    Sketcher.Constraint("Horizontal", 2),
    Sketcher.Constraint("Vertical", 3),
    Sketcher.Constraint("DistanceX", 0, 1, 0, 2, Q("0.5 in")),
    Sketcher.Constraint("DistanceY", 1, 2, 1, 1, Q("0.1 in")),
    Sketcher.Constraint("DistanceY", -1, 1, 1, 2, Q("0.5 in")),
    Sketcher.Constraint("DistanceX", -1, 1, 2, 2, Q("1 in")),
])
sketch20.setExpression("Constraints[8]", "Params.sketch20_width")
sketch20.setExpression("Constraints[9]", "Params.sketch20_height")
pocket13 = body.newObject("PartDesign::Pocket", "Pocket012")
pocket13.Profile = sketch20
pocket13.setExpression("Length", "Params.pocket13_length")
pocket13.Reversed = True

sketch21 = body.newObject("Sketcher::SketchObject", "Sketch020")
sketch21.AttachmentSupport = (doc.getObject("YZ_Plane"), [""])
sketch21.MapMode = "FlatFace"
sketch21.AttachmentOffset = App.Placement(App.Vector(0, 0, 0.8 * 25.4), App.Rotation())
add_polygon(sketch21, [(48.26, 5.08), (2.54, 5.08), (6.35, 8.89), (6.35, 15.24), (44.45, 15.24), (44.45, 8.89)])
sketch21.addConstraint([
    Sketcher.Constraint("Horizontal", 0),
    Sketcher.Constraint("Vertical", 2),
    Sketcher.Constraint("Horizontal", 3),
    Sketcher.Constraint("Vertical", 4),
    Sketcher.Constraint("Perpendicular", 1, 5),
    Sketcher.Constraint("Horizontal", 1, 2, 4, 2),
    Sketcher.Constraint("Equal", 1, 5),
    Sketcher.Constraint("DistanceX", 0, 2, 1, 2, Q("0.15 in")),
    Sketcher.Constraint("DistanceX", 0, 2, 0, 1, Q("1.8 in")),
    Sketcher.Constraint("DistanceY", 2, 1, 2, 2, Q("0.25 in")),
    Sketcher.Constraint("DistanceX", -1, 1, 0, 2, Q("0.1 in")),
    Sketcher.Constraint("DistanceY", -1, 1, 0, 2, Q("0.2 in")),
])
sketch21.setExpression("Constraints[14]", "Params.sketch21_width")
sketch21.setExpression("Constraints[15]", "Params.sketch21_height")
pocket14 = body.newObject("PartDesign::Pocket", "Pocket013")
pocket14.Profile = sketch21
pocket14.setExpression("Length", "Params.pocket14_length")
pocket14.Midplane = True

doc.recompute()
